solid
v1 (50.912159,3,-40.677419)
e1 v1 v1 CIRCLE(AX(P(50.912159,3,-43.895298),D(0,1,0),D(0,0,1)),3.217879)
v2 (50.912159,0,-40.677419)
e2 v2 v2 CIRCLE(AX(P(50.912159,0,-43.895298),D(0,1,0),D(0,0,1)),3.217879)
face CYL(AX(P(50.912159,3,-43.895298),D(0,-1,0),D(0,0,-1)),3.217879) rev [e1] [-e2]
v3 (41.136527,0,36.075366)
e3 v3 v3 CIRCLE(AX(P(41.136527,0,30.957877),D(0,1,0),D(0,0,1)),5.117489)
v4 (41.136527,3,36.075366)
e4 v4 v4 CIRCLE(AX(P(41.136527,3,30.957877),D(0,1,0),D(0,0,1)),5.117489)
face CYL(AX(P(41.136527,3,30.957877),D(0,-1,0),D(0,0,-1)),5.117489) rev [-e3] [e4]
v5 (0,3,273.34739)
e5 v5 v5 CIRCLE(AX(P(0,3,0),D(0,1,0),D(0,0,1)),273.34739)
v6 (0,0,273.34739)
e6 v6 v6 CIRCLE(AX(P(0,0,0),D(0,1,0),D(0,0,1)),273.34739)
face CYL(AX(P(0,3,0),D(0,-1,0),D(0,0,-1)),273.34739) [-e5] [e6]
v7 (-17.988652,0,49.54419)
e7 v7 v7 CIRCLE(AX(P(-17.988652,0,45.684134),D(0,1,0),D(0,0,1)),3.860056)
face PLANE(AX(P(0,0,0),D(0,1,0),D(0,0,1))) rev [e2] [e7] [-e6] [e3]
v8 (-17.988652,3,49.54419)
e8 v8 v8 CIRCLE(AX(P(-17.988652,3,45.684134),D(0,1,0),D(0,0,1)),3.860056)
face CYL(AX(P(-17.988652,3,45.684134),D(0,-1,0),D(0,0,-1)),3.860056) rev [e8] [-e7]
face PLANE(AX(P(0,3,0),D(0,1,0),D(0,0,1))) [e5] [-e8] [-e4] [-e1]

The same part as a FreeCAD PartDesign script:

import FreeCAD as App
import Part
import Sketcher

V = App.Vector
Q = App.Units.Quantity

doc = App.newDocument("Part")
params = doc.addObject("Spreadsheet::Sheet", "Params")
for row, (alias, value) in enumerate([
    ("pad1_length", "3 mm"),
], start=1):
    params.set(f"A{row}", alias)
    params.set(f"B{row}", "=" + value)
    params.setAlias(f"B{row}", alias)

body = doc.addObject("PartDesign::Body", "Body")

# Sketch on XZ plane
sketch1 = body.newObject("Sketcher::SketchObject", "Sketch")
sketch1.AttachmentSupport = (doc.getObject("XZ_Plane"), [""])
sketch1.MapMode = "FlatFace"
sketch1.addGeometry(Part.Circle(V(0, 0, 0), V(0, 0, 1), 273.3), False)
sketch1.addGeometry(Part.Circle(V(-18, 45.7, 0), V(0, 0, 1), 3.9), False)
sketch1.addGeometry(Part.Circle(V(50.9, -43.9, 0), V(0, 0, 1), 3.2), False)
sketch1.addGeometry(Part.Circle(V(41.1, 31, 0), V(0, 0, 1), 5.1), False)
sketch1.addConstraint(Sketcher.Constraint("Coincident", 0, 3, -1, 1))
sketch1.addConstraint(Sketcher.Constraint("Diameter", 0, Q("546.69478 mm")))
sketch1.addConstraint(Sketcher.Constraint("Diameter", 2, Q("6.435758 mm")))
sketch1.addConstraint(Sketcher.Constraint("Diameter", 3, Q("10.234978 mm")))
sketch1.addConstraint(Sketcher.Constraint("Diameter", 1, Q("7.720112 mm")))
sketch1.addConstraint(Sketcher.Constraint("DistanceX", -1, 1, 2, 3, Q("50.912159 mm")))
sketch1.addConstraint(Sketcher.Constraint("DistanceX", 1, 3, 2, 3, Q("68.900811 mm")))
sketch1.addConstraint(Sketcher.Constraint("DistanceY", 2, 3, 1, 3, Q("89.579431 mm")))
sketch1.addConstraint(Sketcher.Constraint("DistanceX", 1, 3, 3, 3, Q("59.125179 mm")))
sketch1.addConstraint(Sketcher.Constraint("DistanceY", -1, 1, 1, 3, Q("45.684134 mm")))
sketch1.addConstraint(Sketcher.Constraint("DistanceY", -1, 1, 3, 3, Q("30.957877 mm")))
pad1 = body.newObject("PartDesign::Pad", "Pad")
pad1.Profile = sketch1
pad1.setExpression("Length", "Params.pad1_length")
pad1.Reversed = True

doc.recompute()
